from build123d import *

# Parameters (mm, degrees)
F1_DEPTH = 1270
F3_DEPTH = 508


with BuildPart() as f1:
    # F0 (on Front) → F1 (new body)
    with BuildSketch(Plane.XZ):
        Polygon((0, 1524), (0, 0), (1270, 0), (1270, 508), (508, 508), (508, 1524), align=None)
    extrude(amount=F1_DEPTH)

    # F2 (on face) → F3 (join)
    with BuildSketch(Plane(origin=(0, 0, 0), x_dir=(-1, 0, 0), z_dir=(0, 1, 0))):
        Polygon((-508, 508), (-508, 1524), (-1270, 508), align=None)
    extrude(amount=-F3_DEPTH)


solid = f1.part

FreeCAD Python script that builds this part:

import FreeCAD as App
import Part
import Sketcher

V = App.Vector
Q = App.Units.Quantity


def add_polygon(sketch, points):
    """Adds a closed chain of lines whose ends are joined by coincident constraints."""
    first, n = sketch.GeometryCount, len(points)
    for a, b in zip(points, points[1:] + points[:1]):
        sketch.addGeometry(Part.LineSegment(App.Vector(*a, 0), App.Vector(*b, 0)), False)
    for i in range(n):
        sketch.addConstraint(Sketcher.Constraint("Coincident", first + i, 2, first + (i + 1) % n, 1))

doc = App.newDocument("Part")
params = doc.addObject("Spreadsheet::Sheet", "Params")
for row, (alias, value) in enumerate([
    ("sketch1_width", "50 in"),
    ("sketch1_width2", "30 in"),
    ("sketch1_height", "60 in"),
    ("pad1_length", "50 in"),
    ("sketch2_width", "30 in"),
    ("sketch2_height", "40 in"),
    ("pad2_length", "20 in"),
], start=1):
    params.set(f"A{row}", alias)
    params.set(f"B{row}", "=" + value)
    params.setAlias(f"B{row}", alias)

body = doc.addObject("PartDesign::Body", "Body")

# Sketch on XZ plane
sketch1 = doc.addObject("Sketcher::SketchObject", "Sketch")
body.addObject(sketch1)
sketch1.AttachmentSupport = (doc.XZ_Plane, [""])
sketch1.MapMode = "FlatFace"
add_polygon(sketch1, [(0, 1524), (0, 0), (1270, 0), (1270, 508), (508, 508), (508, 1524)])  # lines 0-5
sketch1.addConstraint([
    Sketcher.Constraint("Vertical", 0),
    Sketcher.Constraint("Horizontal", 1),
    Sketcher.Constraint("Vertical", 2),
    Sketcher.Constraint("Horizontal", 3),
    Sketcher.Constraint("Vertical", 4),
    Sketcher.Constraint("Horizontal", 5),
    Sketcher.Constraint("Coincident", 0, 2, -1, 1),
    Sketcher.Constraint("Equal", 5, 2),
    Sketcher.Constraint("DistanceX", 1, 1, 1, 2, Q("50 in")),
    Sketcher.Constraint("DistanceX", 3, 2, 3, 1, Q("30 in")),
    Sketcher.Constraint("DistanceY", 0, 2, 0, 1, Q("60 in")),
])
sketch1.setExpression("Constraints[14]", "Params.sketch1_width")
sketch1.setExpression("Constraints[15]", "Params.sketch1_width2")
sketch1.setExpression("Constraints[16]", "Params.sketch1_height")
pad1 = doc.addObject("PartDesign::Pad", "Pad")
body.addObject(pad1)
pad1.Profile = sketch1
pad1.setExpression("Length", "Params.pad1_length")

# Sketch on XZ plane
sketch2 = doc.addObject("Sketcher::SketchObject", "Sketch001")
body.addObject(sketch2)
sketch2.AttachmentSupport = (doc.XZ_Plane, [""])
sketch2.MapMode = "FlatFace"
add_polygon(sketch2, [(508, 508), (508, 1524), (1270, 508)])  # lines 0-2
sketch2.addConstraint([
    Sketcher.Constraint("Vertical", 0),
    Sketcher.Constraint("Horizontal", 2),
    Sketcher.Constraint("DistanceX", 2, 2, 2, 1, Q("30 in")),
    Sketcher.Constraint("DistanceY", 0, 1, 0, 2, Q("40 in")),
    Sketcher.Constraint("DistanceX", -1, 1, 0, 2, Q("20 in")),
    Sketcher.Constraint("DistanceY", -1, 1, 0, 2, Q("60 in")),
])
sketch2.setExpression("Constraints[5]", "Params.sketch2_width")
sketch2.setExpression("Constraints[6]", "Params.sketch2_height")
pad2 = doc.addObject("PartDesign::Pad", "Pad001")
body.addObject(pad2)
pad2.Profile = sketch2
pad2.setExpression("Length", "Params.pad2_length")

doc.recompute()
